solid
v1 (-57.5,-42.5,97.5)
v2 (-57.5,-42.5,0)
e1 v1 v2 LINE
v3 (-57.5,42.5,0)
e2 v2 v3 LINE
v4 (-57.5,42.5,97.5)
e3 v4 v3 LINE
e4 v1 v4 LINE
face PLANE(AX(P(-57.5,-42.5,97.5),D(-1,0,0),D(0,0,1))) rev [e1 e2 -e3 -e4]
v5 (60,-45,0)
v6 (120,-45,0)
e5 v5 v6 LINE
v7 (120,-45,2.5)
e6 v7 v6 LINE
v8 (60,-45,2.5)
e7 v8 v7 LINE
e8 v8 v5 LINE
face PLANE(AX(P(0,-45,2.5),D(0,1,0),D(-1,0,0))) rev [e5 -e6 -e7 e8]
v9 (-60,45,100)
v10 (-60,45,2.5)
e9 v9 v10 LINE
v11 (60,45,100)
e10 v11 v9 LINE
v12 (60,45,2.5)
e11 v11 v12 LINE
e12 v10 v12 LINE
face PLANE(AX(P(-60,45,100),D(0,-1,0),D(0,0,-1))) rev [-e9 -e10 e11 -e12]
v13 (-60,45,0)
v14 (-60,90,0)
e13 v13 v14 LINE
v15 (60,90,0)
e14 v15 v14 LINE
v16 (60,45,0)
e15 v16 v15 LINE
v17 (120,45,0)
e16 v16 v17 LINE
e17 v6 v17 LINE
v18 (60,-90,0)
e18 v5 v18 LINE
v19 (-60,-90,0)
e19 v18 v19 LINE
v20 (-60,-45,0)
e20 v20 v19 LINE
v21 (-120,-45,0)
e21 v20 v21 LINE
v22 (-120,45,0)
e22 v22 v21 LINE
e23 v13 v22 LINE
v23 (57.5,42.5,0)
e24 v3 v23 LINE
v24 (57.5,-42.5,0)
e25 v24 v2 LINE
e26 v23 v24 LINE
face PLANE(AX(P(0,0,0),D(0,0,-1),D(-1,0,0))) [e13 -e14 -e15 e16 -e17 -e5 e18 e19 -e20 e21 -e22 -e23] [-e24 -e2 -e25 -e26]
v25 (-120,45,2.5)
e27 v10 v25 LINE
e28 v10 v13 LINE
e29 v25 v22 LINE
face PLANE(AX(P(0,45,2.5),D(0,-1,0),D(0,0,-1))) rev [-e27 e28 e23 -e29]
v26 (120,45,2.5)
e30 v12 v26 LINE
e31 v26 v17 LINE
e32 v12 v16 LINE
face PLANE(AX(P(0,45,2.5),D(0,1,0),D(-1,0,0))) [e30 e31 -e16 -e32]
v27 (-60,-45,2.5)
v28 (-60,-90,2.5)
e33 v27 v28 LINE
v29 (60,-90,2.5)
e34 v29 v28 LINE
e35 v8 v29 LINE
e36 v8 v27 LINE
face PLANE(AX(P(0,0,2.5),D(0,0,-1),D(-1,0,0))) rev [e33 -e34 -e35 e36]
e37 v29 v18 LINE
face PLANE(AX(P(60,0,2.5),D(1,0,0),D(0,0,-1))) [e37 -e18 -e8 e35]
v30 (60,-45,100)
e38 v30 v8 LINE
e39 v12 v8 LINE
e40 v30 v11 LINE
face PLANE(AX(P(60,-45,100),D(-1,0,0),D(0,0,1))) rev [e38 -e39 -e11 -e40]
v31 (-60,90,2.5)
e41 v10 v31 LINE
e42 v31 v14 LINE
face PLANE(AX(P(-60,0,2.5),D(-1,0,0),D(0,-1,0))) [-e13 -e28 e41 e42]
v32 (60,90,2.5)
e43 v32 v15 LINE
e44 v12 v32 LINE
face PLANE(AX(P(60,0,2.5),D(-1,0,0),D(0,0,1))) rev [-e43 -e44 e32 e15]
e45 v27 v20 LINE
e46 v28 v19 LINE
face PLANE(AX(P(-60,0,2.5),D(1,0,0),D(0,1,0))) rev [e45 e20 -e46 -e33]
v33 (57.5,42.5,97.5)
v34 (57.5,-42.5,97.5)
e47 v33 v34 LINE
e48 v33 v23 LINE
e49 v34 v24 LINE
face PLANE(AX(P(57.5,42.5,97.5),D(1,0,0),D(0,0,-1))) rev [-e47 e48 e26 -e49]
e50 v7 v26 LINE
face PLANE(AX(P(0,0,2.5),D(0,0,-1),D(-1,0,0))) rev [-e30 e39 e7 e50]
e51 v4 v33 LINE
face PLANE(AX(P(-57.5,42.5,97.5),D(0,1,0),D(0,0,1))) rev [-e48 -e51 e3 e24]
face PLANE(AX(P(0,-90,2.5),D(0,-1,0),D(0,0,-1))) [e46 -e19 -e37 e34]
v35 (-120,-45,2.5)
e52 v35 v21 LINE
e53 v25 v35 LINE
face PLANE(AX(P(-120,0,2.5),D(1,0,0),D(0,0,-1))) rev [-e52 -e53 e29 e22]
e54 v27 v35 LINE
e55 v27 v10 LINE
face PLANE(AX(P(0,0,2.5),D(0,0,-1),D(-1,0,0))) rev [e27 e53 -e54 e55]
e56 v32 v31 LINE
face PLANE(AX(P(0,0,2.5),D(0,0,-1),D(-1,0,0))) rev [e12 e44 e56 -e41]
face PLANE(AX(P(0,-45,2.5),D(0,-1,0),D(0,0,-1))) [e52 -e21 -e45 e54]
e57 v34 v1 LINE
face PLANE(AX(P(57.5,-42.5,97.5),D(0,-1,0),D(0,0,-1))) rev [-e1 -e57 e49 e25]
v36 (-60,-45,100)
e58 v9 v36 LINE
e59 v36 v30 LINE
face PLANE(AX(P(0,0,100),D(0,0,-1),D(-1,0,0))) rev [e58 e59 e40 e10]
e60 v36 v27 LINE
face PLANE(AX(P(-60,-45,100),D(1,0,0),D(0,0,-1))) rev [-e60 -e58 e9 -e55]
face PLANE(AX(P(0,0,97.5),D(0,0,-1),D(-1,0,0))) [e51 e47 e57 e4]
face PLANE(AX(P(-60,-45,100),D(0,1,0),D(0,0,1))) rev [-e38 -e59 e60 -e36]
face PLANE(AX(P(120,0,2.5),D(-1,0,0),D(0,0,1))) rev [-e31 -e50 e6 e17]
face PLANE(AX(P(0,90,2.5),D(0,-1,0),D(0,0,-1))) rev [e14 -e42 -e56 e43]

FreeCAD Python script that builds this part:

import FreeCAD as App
import Part
import Sketcher
Q = App.Units.Quantity

doc = App.newDocument("Part")
body = doc.addObject("PartDesign::Body", "Body")

# Sketch on XY plane
sketch1 = body.newObject("Sketcher::SketchObject", "Sketch")
sketch1.AttachmentSupport = (doc.getObject("XY_Plane"), [""])
sketch1.MapMode = "FlatFace"
sketch1.addGeometry([
    Part.LineSegment(App.Vector(-60, 45, 0), App.Vector(-60, -45, 0)),
    Part.LineSegment(App.Vector(-60, -45, 0), App.Vector(60, -45, 0)),
    Part.LineSegment(App.Vector(60, -45, 0), App.Vector(60, 45, 0)),
    Part.LineSegment(App.Vector(60, 45, 0), App.Vector(-60, 45, 0)),
], False)
sketch1.addConstraint([
    Sketcher.Constraint("Coincident", 0, 2, 1, 1),
    Sketcher.Constraint("Coincident", 1, 2, 2, 1),
    Sketcher.Constraint("Coincident", 2, 2, 3, 1),
    Sketcher.Constraint("Coincident", 3, 2, 0, 1),
    Sketcher.Constraint("Vertical", 0),
    Sketcher.Constraint("Horizontal", 1),
    Sketcher.Constraint("Vertical", 2),
    Sketcher.Constraint("Horizontal", 3),
    Sketcher.Constraint("Symmetric", 0, 2, 2, 2, -1, 1),
    Sketcher.Constraint("DistanceX", 1, 1, 1, 2, Q("120 mm")),
    Sketcher.Constraint("DistanceY", 0, 2, 0, 1, Q("90 mm")),
])
pad1 = body.newObject("PartDesign::Pad", "Pad")
pad1.Profile = sketch1
pad1.Length = 100

# Sketch on XY plane
sketch2 = body.newObject("Sketcher::SketchObject", "Sketch001")
sketch2.AttachmentSupport = (doc.getObject("XY_Plane"), [""])
sketch2.MapMode = "FlatFace"
sketch2.addGeometry([
    Part.LineSegment(App.Vector(58, 42, 0), App.Vector(58, -42, 0)),
    Part.LineSegment(App.Vector(58, -42, 0), App.Vector(-58, -42, 0)),
    Part.LineSegment(App.Vector(-58, -42, 0), App.Vector(-58, 42, 0)),
    Part.LineSegment(App.Vector(-58, 42, 0), App.Vector(58, 42, 0)),
], False)
sketch2.addConstraint([
    Sketcher.Constraint("Coincident", 0, 2, 1, 1),
    Sketcher.Constraint("Coincident", 1, 2, 2, 1),
    Sketcher.Constraint("Coincident", 2, 2, 3, 1),
    Sketcher.Constraint("Coincident", 3, 2, 0, 1),
    Sketcher.Constraint("Vertical", 0),
    Sketcher.Constraint("Horizontal", 1),
    Sketcher.Constraint("Vertical", 2),
    Sketcher.Constraint("Horizontal", 3),
    Sketcher.Constraint("Symmetric", 0, 2, 2, 2, -1, 1),
    Sketcher.Constraint("DistanceX", 1, 2, 1, 1, Q("115 mm")),
    Sketcher.Constraint("DistanceY", 0, 2, 0, 1, Q("85 mm")),
])
pocket1 = body.newObject("PartDesign::Pocket", "Pocket")
pocket1.Profile = sketch2
pocket1.Length = 97.5
pocket1.Reversed = True

# Sketch on XY plane
sketch3 = body.newObject("Sketcher::SketchObject", "Sketch002")
sketch3.AttachmentSupport = (doc.getObject("XY_Plane"), [""])
sketch3.MapMode = "FlatFace"
sketch3.addGeometry([
    Part.LineSegment(App.Vector(120, 45, 0), App.Vector(120, -45, 0)),  # 0
    Part.LineSegment(App.Vector(120, -45, 0), App.Vector(60, -45, 0)),  # 1
    Part.LineSegment(App.Vector(60, -45, 0), App.Vector(60, -90, 0)),  # 2
    Part.LineSegment(App.Vector(60, -90, 0), App.Vector(-60, -90, 0)),  # 3
    Part.LineSegment(App.Vector(-60, -90, 0), App.Vector(-60, -45, 0)),  # 4
    Part.LineSegment(App.Vector(-60, -45, 0), App.Vector(-120, -45, 0)),  # 5
    Part.LineSegment(App.Vector(-120, -45, 0), App.Vector(-120, 45, 0)),  # 6
    Part.LineSegment(App.Vector(-120, 45, 0), App.Vector(-60, 45, 0)),  # 7
    Part.LineSegment(App.Vector(-60, 45, 0), App.Vector(-60, 90, 0)),  # 8
    Part.LineSegment(App.Vector(-60, 90, 0), App.Vector(60, 90, 0)),  # 9
    Part.LineSegment(App.Vector(60, 90, 0), App.Vector(60, 45, 0)),  # 10
    Part.LineSegment(App.Vector(60, 45, 0), App.Vector(120, 45, 0)),  # 11
    Part.LineSegment(App.Vector(58, -42, 0), App.Vector(58, 42, 0)),  # 12
    Part.LineSegment(App.Vector(58, 42, 0), App.Vector(-58, 42, 0)),  # 13
    Part.LineSegment(App.Vector(-58, 42, 0), App.Vector(-58, -42, 0)),  # 14
    Part.LineSegment(App.Vector(-58, -42, 0), App.Vector(58, -42, 0)),  # 15
], False)
sketch3.addConstraint([
    Sketcher.Constraint("Coincident", 0, 2, 1, 1),
    Sketcher.Constraint("Coincident", 1, 2, 2, 1),
    Sketcher.Constraint("Coincident", 2, 2, 3, 1),
    Sketcher.Constraint("Coincident", 3, 2, 4, 1),
    Sketcher.Constraint("Coincident", 4, 2, 5, 1),
    Sketcher.Constraint("Coincident", 5, 2, 6, 1),
    Sketcher.Constraint("Coincident", 6, 2, 7, 1),
    Sketcher.Constraint("Coincident", 7, 2, 8, 1),
    Sketcher.Constraint("Coincident", 8, 2, 9, 1),
    Sketcher.Constraint("Coincident", 9, 2, 10, 1),
    Sketcher.Constraint("Coincident", 10, 2, 11, 1),
    Sketcher.Constraint("Coincident", 11, 2, 0, 1),
    Sketcher.Constraint("Coincident", 12, 2, 13, 1),
    Sketcher.Constraint("Coincident", 13, 2, 14, 1),
    Sketcher.Constraint("Coincident", 14, 2, 15, 1),
    Sketcher.Constraint("Coincident", 15, 2, 12, 1),
    Sketcher.Constraint("Vertical", 0),
    Sketcher.Constraint("Horizontal", 1),
    Sketcher.Constraint("Vertical", 2),
    Sketcher.Constraint("Horizontal", 3),
    Sketcher.Constraint("Vertical", 4),
    Sketcher.Constraint("Horizontal", 5),
    Sketcher.Constraint("Vertical", 6),
    Sketcher.Constraint("Horizontal", 7),
    Sketcher.Constraint("Vertical", 8),
    Sketcher.Constraint("Horizontal", 9),
    Sketcher.Constraint("Vertical", 10),
    Sketcher.Constraint("Horizontal", 11),
    Sketcher.Constraint("Vertical", 12),
    Sketcher.Constraint("Horizontal", 13),
    Sketcher.Constraint("Vertical", 14),
    Sketcher.Constraint("Horizontal", 15),
    Sketcher.Constraint("Symmetric", 0, 2, 6, 2, -1, 1),
    Sketcher.Constraint("Symmetric", 2, 2, 8, 2, -1, 1),
    Sketcher.Constraint("Symmetric", 4, 2, 10, 2, -1, 1),
    Sketcher.Constraint("Symmetric", 12, 2, 14, 2, -1, 1),
    Sketcher.Constraint("Symmetric", 1, 2, 4, 2, -2),
    Sketcher.Constraint("DistanceX", 1, 2, 1, 1, Q("60 mm")),
    Sketcher.Constraint("DistanceX", 3, 2, 3, 1, Q("120 mm")),
    Sketcher.Constraint("DistanceX", 13, 2, 13, 1, Q("115 mm")),
    Sketcher.Constraint("DistanceY", 0, 2, 0, 1, Q("90 mm")),
    Sketcher.Constraint("DistanceY", 2, 2, 2, 1, Q("45 mm")),
    Sketcher.Constraint("DistanceY", 12, 1, 12, 2, Q("85 mm")),
])
pad2 = body.newObject("PartDesign::Pad", "Pad001")
pad2.Profile = sketch3
pad2.Length = 2.5

doc.recompute()
